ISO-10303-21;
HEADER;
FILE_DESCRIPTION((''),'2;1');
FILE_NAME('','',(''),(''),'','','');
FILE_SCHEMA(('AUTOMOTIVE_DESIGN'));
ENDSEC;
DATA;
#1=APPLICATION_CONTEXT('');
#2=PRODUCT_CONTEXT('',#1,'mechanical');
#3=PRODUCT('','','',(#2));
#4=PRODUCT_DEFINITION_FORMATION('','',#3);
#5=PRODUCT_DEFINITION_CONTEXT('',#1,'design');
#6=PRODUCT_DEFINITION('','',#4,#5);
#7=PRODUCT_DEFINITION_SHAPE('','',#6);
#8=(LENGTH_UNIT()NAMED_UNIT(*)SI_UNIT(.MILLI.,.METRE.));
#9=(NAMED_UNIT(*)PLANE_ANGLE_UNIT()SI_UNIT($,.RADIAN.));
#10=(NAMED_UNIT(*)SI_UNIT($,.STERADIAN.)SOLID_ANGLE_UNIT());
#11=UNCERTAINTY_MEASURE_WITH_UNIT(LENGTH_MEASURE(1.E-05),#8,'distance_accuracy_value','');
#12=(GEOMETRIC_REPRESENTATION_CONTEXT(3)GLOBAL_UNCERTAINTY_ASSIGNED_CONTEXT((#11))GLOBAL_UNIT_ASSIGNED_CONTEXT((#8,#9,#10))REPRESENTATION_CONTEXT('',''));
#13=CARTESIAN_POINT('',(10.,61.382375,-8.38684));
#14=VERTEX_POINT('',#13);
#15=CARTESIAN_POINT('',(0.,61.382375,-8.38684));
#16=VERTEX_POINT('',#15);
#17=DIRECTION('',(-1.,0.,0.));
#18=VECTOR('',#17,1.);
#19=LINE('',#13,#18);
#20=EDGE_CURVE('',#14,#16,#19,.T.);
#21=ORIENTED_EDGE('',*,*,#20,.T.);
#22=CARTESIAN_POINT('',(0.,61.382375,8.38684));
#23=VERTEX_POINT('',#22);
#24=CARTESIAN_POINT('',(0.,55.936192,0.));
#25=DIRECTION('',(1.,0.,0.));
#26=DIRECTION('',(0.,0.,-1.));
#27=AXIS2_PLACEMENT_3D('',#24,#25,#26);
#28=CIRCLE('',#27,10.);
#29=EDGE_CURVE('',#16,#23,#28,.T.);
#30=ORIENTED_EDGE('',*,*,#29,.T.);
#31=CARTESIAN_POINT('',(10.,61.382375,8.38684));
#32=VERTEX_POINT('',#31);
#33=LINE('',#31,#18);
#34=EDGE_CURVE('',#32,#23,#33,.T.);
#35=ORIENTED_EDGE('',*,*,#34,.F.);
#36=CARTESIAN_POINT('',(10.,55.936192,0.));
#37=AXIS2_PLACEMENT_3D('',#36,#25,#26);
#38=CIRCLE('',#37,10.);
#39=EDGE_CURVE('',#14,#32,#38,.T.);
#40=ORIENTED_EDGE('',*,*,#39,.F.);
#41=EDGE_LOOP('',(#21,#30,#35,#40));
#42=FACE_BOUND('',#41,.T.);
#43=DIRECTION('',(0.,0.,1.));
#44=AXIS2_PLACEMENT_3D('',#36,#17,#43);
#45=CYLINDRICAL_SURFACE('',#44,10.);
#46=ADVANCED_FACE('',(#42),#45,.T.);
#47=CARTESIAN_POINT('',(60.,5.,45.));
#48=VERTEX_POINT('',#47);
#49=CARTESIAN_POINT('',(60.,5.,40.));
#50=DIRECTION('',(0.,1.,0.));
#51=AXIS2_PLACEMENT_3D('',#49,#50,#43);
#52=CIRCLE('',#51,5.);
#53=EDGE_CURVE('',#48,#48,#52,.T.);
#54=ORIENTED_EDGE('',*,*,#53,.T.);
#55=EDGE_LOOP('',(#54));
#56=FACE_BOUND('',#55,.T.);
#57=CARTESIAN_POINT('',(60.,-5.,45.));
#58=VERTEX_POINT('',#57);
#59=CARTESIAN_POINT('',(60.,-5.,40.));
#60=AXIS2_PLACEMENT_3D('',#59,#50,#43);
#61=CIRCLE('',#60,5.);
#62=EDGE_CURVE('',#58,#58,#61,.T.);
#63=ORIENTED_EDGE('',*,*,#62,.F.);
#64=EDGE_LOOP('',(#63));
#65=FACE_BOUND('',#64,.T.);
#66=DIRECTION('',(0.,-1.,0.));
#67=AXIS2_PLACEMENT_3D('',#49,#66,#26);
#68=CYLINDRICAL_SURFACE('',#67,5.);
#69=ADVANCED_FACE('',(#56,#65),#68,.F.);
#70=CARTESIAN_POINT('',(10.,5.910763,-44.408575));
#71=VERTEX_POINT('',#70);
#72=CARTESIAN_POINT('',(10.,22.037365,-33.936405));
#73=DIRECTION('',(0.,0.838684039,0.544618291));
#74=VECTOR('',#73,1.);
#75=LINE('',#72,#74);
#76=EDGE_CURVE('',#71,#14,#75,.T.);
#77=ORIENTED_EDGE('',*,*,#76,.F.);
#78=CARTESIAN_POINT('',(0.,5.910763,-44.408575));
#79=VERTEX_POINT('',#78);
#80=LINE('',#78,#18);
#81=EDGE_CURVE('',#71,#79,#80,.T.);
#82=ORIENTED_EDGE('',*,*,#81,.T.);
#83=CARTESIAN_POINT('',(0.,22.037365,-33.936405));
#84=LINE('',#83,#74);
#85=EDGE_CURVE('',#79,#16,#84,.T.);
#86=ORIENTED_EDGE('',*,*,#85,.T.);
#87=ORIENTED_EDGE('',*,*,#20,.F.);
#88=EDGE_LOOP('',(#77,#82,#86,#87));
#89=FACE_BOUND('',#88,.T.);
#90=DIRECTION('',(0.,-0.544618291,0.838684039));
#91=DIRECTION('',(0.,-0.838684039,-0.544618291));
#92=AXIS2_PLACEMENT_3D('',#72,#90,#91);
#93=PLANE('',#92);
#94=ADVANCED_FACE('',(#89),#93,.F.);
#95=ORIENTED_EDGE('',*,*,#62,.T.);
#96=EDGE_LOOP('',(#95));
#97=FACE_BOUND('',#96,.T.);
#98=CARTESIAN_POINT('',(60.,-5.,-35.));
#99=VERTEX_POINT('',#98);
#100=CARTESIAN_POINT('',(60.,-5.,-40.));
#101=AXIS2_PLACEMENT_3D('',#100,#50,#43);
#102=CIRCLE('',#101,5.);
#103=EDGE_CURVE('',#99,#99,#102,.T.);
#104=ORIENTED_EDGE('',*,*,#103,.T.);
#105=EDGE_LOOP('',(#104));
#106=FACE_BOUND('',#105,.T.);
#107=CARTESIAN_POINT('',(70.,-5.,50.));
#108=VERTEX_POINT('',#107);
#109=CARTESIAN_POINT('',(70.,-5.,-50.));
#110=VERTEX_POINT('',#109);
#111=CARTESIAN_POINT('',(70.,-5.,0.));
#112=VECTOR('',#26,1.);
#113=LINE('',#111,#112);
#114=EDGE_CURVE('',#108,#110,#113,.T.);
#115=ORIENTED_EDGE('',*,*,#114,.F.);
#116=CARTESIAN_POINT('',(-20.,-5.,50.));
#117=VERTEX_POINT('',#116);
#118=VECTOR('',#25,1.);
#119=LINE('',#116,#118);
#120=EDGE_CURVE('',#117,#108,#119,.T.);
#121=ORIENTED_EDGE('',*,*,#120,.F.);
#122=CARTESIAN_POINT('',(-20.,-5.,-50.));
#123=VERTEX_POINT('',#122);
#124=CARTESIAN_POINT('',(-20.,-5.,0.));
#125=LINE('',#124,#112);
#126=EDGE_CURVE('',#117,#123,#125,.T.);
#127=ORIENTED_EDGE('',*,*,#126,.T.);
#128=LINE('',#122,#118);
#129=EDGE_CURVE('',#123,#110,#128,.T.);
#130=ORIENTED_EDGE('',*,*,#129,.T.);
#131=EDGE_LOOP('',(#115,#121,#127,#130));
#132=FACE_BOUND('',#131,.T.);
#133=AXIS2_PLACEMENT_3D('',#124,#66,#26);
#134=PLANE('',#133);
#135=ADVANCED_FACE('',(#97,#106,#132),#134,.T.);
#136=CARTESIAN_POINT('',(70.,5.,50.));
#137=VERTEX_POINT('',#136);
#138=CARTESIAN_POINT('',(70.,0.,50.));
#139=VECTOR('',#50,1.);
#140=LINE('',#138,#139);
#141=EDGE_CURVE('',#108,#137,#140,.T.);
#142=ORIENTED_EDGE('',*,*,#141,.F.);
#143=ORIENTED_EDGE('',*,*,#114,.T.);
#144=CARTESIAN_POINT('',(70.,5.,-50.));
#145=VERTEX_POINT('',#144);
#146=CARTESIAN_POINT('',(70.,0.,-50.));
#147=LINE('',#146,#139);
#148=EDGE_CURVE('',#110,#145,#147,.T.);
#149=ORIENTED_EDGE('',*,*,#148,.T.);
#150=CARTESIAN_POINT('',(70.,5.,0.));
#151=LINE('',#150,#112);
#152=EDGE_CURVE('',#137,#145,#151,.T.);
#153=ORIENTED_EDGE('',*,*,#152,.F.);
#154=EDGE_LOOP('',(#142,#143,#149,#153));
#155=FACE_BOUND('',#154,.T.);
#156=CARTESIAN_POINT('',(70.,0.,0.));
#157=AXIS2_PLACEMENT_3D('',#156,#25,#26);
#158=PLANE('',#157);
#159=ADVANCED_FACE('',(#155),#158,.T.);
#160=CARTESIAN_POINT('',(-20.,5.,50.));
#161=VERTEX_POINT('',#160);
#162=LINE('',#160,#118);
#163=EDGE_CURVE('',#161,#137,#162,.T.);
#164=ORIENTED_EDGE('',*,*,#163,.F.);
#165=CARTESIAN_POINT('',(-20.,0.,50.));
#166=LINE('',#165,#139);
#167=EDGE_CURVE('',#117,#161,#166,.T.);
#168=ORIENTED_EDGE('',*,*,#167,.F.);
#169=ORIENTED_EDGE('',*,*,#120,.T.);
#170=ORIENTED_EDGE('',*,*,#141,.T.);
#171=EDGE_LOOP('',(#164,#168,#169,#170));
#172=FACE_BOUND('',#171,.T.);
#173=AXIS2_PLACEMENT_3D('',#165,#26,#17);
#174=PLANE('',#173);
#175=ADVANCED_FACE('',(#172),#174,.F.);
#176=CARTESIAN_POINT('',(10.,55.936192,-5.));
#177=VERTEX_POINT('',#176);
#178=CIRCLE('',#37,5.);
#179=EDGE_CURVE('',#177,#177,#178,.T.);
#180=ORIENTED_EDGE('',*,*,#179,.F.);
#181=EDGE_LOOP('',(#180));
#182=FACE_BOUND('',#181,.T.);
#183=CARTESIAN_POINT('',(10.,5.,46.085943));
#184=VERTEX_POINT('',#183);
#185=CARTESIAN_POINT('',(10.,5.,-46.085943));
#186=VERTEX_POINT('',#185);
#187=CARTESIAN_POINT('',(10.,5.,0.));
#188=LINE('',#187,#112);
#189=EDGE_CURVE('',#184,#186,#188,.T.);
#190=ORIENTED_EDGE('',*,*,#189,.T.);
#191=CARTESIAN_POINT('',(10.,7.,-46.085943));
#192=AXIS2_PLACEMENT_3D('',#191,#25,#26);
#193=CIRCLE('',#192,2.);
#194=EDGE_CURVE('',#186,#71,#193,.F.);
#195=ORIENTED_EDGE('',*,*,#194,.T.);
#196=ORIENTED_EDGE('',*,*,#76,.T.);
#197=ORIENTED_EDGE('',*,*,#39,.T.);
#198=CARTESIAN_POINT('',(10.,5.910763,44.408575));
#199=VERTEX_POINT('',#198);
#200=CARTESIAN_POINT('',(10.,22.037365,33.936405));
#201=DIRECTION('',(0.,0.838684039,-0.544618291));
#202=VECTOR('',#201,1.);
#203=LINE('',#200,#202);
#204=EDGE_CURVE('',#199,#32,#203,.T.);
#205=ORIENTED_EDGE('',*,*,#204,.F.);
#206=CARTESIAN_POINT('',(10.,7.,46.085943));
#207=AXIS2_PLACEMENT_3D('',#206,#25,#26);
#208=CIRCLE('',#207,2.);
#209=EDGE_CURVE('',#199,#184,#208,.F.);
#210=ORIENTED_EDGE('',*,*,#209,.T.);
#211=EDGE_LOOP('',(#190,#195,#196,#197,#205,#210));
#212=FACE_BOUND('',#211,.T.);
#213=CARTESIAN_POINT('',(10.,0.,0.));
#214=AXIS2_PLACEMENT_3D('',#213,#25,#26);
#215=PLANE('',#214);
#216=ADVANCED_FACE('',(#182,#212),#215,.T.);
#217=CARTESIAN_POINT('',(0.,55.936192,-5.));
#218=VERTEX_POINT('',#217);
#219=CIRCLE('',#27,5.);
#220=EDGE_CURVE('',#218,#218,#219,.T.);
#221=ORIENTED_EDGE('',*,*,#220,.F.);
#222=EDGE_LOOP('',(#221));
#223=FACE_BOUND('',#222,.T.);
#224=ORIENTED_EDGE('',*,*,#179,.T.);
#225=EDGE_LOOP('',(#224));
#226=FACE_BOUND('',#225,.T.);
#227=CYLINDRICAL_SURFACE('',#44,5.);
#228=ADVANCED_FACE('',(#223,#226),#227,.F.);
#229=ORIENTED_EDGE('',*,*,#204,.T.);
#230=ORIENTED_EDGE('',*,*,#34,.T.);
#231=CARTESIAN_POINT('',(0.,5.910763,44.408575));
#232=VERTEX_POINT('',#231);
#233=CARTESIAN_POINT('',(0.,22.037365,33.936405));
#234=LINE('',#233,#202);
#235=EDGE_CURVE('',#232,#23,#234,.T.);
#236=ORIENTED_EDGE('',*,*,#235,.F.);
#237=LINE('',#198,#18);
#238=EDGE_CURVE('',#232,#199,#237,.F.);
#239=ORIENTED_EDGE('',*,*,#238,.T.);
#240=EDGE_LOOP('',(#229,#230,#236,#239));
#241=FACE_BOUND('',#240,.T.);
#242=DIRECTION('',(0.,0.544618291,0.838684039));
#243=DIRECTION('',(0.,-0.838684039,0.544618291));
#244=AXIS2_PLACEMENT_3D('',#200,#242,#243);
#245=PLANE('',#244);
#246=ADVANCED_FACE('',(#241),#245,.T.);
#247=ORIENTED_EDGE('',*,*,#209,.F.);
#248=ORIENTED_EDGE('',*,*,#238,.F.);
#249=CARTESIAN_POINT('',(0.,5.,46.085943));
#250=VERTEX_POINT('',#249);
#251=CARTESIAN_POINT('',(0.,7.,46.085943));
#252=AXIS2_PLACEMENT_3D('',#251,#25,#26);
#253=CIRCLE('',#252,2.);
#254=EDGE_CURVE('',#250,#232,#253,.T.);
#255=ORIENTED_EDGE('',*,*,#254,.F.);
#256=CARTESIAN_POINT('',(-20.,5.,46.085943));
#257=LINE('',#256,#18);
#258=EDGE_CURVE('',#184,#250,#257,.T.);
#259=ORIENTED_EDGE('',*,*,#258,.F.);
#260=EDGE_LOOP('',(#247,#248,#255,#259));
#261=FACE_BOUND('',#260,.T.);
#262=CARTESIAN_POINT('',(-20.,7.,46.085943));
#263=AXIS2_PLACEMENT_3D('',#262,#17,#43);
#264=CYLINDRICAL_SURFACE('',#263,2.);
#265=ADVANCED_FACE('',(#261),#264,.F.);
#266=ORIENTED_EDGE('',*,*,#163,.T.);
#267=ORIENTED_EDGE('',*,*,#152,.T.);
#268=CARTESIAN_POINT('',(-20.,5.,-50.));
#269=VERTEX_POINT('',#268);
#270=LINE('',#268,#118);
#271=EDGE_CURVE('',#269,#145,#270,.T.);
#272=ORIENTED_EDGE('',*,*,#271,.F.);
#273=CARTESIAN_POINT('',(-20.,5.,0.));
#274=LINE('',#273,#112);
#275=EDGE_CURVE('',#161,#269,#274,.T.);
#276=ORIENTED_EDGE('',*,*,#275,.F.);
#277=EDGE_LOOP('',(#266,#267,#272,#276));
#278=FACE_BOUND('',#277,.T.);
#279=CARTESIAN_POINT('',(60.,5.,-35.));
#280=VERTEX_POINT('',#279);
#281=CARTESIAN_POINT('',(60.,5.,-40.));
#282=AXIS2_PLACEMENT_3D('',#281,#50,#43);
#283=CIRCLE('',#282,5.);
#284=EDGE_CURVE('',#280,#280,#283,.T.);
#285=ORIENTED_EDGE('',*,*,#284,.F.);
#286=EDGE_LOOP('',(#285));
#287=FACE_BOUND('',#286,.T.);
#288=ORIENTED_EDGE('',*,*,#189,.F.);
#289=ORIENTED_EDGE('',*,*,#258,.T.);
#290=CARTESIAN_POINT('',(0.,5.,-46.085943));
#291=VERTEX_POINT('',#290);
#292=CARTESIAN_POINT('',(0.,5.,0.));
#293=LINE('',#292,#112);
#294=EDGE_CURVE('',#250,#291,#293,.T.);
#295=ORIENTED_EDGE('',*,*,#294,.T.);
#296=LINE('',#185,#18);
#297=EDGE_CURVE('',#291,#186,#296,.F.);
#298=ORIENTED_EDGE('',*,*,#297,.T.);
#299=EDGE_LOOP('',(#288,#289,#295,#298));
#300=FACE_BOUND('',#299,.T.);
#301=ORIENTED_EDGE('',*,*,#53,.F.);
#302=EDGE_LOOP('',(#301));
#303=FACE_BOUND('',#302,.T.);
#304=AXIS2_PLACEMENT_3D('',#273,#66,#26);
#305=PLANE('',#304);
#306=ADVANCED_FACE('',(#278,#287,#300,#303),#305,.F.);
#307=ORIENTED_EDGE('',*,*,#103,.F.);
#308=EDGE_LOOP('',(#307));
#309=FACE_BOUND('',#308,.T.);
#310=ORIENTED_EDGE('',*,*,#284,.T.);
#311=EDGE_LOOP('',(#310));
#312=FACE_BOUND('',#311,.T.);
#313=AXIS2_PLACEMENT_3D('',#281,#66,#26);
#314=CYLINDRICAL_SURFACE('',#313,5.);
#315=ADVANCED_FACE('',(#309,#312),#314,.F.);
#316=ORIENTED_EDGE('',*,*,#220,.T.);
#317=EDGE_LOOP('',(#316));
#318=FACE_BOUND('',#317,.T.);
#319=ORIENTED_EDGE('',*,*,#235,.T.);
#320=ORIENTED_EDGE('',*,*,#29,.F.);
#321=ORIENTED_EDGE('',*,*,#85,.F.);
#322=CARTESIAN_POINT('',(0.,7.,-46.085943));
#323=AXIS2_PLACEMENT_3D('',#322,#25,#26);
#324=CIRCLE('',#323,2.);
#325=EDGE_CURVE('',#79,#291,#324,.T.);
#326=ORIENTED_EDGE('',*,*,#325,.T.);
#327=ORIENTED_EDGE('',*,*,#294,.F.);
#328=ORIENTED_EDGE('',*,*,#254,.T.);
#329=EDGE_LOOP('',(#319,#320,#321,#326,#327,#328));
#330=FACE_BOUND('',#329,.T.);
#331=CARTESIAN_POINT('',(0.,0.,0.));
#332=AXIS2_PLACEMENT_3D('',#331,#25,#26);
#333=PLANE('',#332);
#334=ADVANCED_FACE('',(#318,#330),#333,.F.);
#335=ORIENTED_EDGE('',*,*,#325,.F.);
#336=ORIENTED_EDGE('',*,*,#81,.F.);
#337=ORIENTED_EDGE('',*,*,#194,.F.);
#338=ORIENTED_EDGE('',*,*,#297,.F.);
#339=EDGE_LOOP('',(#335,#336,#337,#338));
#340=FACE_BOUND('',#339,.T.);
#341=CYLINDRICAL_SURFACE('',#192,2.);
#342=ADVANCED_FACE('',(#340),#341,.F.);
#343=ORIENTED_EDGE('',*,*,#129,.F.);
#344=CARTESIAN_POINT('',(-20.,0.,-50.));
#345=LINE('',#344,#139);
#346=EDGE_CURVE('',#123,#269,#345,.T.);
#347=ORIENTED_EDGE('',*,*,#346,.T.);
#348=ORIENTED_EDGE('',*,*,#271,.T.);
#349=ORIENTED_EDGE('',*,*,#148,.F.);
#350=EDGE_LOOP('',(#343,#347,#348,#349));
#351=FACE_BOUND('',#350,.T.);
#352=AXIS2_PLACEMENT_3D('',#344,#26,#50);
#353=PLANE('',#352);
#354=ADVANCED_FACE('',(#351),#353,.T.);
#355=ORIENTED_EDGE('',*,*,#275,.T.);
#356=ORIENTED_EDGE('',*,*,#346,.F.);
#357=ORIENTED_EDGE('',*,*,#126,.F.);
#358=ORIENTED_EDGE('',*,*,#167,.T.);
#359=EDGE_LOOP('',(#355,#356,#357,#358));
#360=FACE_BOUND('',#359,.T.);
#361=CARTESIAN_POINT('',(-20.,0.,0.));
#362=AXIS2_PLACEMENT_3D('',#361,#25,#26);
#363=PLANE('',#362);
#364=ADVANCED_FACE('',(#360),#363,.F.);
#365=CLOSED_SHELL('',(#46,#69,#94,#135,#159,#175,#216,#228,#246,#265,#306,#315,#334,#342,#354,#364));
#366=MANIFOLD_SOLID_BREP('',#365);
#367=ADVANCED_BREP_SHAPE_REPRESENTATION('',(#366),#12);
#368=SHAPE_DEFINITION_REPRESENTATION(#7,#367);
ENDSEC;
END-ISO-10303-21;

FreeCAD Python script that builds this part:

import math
import FreeCAD as App
import Part
import Sketcher

V = App.Vector


def edges_at(feature, points):
    """Names of the edges that pass closest to the given points."""
    edges = feature.Shape.Edges
    near = lambda p: min(range(len(edges)), key=lambda i: edges[i].distToShape(Part.Vertex(*p))[0])
    return sorted({f"Edge{near(p) + 1}" for p in points})


def add_polygon(sketch, points):
    """Adds a closed chain of lines whose ends are joined by coincident constraints."""
    first, n = sketch.GeometryCount, len(points)
    for a, b in zip(points, points[1:] + points[:1]):
        sketch.addGeometry(Part.LineSegment(App.Vector(*a, 0), App.Vector(*b, 0)), False)
    for i in range(n):
        sketch.addConstraint(Sketcher.Constraint("Coincident", first + i, 2, first + (i + 1) % n, 1))

doc = App.newDocument("Part")
body = doc.addObject("PartDesign::Body", "Body")

# Sketch on YZ plane
sketch1 = body.newObject("Sketcher::SketchObject", "Sketch")
sketch1.AttachmentSupport = (doc.getObject("YZ_Plane"), [""])
sketch1.MapMode = "FlatFace"
sketch1.addGeometry(Part.LineSegment(V(61, 8, 0), V(5, 45, 0)), False)
sketch1.addGeometry(Part.LineSegment(V(5, 45, 0), V(5, -45, 0)), False)
sketch1.addGeometry(Part.LineSegment(V(5, -45, 0), V(61, -8, 0)), False)
sketch1.addGeometry(Part.ArcOfCircle(Part.Circle(V(56, 0, 0), V(0, 0, 1), 10), math.radians(-57), math.radians(57)), False)
sketch1.addGeometry(Part.Circle(V(56, 0, 0), V(0, 0, 1), 5), False)
sketch1.addConstraint(Sketcher.Constraint("Coincident", 0, 2, 1, 1))
sketch1.addConstraint(Sketcher.Constraint("Coincident", 1, 2, 2, 1))
sketch1.addConstraint(Sketcher.Constraint("Tangent", 2, 2, 3, 1))
sketch1.addConstraint(Sketcher.Constraint("Tangent", 3, 2, 0, 1))
sketch1.addConstraint(Sketcher.Constraint("Vertical", 1))
sketch1.addConstraint(Sketcher.Constraint("Coincident", 4, 3, 3, 3))
sketch1.addConstraint(Sketcher.Constraint("Symmetric", 2, 2, 3, 2, -1))
sketch1.addConstraint(Sketcher.Constraint("Diameter", 4, 10.0))
sketch1.addConstraint(Sketcher.Constraint("Radius", 3, 10.0))
sketch1.addConstraint(Sketcher.Constraint("DistanceY", 1, 2, 1, 1, 90.0))
sketch1.addConstraint(Sketcher.Constraint("DistanceX", -1, 1, 0, 2, 5.0))
sketch1.addConstraint(Sketcher.Constraint("DistanceX", -1, 1, 3, 3, 55.936192))
pad1 = body.newObject("PartDesign::Pad", "Pad")
pad1.Profile = sketch1
pad1.Length = 10

# Sketch on YZ plane
sketch2 = body.newObject("Sketcher::SketchObject", "Sketch001")
sketch2.AttachmentSupport = (doc.getObject("YZ_Plane"), [""])
sketch2.MapMode = "FlatFace"
add_polygon(sketch2, [(5, 50), (-5, 50), (-5, -50), (5, -50)])  # lines 0-3
sketch2.addConstraint(Sketcher.Constraint("Horizontal", 0))
sketch2.addConstraint(Sketcher.Constraint("Vertical", 1))
sketch2.addConstraint(Sketcher.Constraint("Horizontal", 2))
sketch2.addConstraint(Sketcher.Constraint("Vertical", 3))
sketch2.addConstraint(Sketcher.Constraint("Symmetric", 0, 2, 2, 2, -1, 1))
sketch2.addConstraint(Sketcher.Constraint("DistanceX", 0, 2, 0, 1, 10.0))
sketch2.addConstraint(Sketcher.Constraint("DistanceY", 1, 2, 1, 1, 100.0))
pad2 = body.newObject("PartDesign::Pad", "Pad001")
pad2.Profile = sketch2
pad2.Type = "TwoLengths"
pad2.Length = 70
pad2.Length2 = 20

# Sketch on XZ plane
sketch3 = body.newObject("Sketcher::SketchObject", "Sketch002")
sketch3.AttachmentSupport = (doc.getObject("XZ_Plane"), [""])
sketch3.MapMode = "FlatFace"
sketch3.addGeometry(Part.Circle(V(60, -40, 0), V(0, 0, 1), 5), False)
sketch3.addGeometry(Part.Circle(V(60, 40, 0), V(0, 0, 1), 5), False)
sketch3.addConstraint(Sketcher.Constraint("Equal", 0, 1))
sketch3.addConstraint(Sketcher.Constraint("Symmetric", 0, 3, 1, 3, -1))
sketch3.addConstraint(Sketcher.Constraint("Diameter", 0, 10.0))
sketch3.addConstraint(Sketcher.Constraint("DistanceX", -1, 1, 0, 3, 60.0))
sketch3.addConstraint(Sketcher.Constraint("DistanceY", 0, 3, -1, 1, 40.0))
pocket1 = body.newObject("PartDesign::Pocket", "Pocket")
pocket1.Profile = sketch3
pocket1.Length = 10
pocket1.Midplane = True
doc.recompute()

fillet = body.newObject("PartDesign::Fillet", "Fillet")
fillet.Base = (pocket1, edges_at(pocket1, [(5, 5, -45), (5, 5, 45)]))
fillet.Radius = 2

doc.recompute()
